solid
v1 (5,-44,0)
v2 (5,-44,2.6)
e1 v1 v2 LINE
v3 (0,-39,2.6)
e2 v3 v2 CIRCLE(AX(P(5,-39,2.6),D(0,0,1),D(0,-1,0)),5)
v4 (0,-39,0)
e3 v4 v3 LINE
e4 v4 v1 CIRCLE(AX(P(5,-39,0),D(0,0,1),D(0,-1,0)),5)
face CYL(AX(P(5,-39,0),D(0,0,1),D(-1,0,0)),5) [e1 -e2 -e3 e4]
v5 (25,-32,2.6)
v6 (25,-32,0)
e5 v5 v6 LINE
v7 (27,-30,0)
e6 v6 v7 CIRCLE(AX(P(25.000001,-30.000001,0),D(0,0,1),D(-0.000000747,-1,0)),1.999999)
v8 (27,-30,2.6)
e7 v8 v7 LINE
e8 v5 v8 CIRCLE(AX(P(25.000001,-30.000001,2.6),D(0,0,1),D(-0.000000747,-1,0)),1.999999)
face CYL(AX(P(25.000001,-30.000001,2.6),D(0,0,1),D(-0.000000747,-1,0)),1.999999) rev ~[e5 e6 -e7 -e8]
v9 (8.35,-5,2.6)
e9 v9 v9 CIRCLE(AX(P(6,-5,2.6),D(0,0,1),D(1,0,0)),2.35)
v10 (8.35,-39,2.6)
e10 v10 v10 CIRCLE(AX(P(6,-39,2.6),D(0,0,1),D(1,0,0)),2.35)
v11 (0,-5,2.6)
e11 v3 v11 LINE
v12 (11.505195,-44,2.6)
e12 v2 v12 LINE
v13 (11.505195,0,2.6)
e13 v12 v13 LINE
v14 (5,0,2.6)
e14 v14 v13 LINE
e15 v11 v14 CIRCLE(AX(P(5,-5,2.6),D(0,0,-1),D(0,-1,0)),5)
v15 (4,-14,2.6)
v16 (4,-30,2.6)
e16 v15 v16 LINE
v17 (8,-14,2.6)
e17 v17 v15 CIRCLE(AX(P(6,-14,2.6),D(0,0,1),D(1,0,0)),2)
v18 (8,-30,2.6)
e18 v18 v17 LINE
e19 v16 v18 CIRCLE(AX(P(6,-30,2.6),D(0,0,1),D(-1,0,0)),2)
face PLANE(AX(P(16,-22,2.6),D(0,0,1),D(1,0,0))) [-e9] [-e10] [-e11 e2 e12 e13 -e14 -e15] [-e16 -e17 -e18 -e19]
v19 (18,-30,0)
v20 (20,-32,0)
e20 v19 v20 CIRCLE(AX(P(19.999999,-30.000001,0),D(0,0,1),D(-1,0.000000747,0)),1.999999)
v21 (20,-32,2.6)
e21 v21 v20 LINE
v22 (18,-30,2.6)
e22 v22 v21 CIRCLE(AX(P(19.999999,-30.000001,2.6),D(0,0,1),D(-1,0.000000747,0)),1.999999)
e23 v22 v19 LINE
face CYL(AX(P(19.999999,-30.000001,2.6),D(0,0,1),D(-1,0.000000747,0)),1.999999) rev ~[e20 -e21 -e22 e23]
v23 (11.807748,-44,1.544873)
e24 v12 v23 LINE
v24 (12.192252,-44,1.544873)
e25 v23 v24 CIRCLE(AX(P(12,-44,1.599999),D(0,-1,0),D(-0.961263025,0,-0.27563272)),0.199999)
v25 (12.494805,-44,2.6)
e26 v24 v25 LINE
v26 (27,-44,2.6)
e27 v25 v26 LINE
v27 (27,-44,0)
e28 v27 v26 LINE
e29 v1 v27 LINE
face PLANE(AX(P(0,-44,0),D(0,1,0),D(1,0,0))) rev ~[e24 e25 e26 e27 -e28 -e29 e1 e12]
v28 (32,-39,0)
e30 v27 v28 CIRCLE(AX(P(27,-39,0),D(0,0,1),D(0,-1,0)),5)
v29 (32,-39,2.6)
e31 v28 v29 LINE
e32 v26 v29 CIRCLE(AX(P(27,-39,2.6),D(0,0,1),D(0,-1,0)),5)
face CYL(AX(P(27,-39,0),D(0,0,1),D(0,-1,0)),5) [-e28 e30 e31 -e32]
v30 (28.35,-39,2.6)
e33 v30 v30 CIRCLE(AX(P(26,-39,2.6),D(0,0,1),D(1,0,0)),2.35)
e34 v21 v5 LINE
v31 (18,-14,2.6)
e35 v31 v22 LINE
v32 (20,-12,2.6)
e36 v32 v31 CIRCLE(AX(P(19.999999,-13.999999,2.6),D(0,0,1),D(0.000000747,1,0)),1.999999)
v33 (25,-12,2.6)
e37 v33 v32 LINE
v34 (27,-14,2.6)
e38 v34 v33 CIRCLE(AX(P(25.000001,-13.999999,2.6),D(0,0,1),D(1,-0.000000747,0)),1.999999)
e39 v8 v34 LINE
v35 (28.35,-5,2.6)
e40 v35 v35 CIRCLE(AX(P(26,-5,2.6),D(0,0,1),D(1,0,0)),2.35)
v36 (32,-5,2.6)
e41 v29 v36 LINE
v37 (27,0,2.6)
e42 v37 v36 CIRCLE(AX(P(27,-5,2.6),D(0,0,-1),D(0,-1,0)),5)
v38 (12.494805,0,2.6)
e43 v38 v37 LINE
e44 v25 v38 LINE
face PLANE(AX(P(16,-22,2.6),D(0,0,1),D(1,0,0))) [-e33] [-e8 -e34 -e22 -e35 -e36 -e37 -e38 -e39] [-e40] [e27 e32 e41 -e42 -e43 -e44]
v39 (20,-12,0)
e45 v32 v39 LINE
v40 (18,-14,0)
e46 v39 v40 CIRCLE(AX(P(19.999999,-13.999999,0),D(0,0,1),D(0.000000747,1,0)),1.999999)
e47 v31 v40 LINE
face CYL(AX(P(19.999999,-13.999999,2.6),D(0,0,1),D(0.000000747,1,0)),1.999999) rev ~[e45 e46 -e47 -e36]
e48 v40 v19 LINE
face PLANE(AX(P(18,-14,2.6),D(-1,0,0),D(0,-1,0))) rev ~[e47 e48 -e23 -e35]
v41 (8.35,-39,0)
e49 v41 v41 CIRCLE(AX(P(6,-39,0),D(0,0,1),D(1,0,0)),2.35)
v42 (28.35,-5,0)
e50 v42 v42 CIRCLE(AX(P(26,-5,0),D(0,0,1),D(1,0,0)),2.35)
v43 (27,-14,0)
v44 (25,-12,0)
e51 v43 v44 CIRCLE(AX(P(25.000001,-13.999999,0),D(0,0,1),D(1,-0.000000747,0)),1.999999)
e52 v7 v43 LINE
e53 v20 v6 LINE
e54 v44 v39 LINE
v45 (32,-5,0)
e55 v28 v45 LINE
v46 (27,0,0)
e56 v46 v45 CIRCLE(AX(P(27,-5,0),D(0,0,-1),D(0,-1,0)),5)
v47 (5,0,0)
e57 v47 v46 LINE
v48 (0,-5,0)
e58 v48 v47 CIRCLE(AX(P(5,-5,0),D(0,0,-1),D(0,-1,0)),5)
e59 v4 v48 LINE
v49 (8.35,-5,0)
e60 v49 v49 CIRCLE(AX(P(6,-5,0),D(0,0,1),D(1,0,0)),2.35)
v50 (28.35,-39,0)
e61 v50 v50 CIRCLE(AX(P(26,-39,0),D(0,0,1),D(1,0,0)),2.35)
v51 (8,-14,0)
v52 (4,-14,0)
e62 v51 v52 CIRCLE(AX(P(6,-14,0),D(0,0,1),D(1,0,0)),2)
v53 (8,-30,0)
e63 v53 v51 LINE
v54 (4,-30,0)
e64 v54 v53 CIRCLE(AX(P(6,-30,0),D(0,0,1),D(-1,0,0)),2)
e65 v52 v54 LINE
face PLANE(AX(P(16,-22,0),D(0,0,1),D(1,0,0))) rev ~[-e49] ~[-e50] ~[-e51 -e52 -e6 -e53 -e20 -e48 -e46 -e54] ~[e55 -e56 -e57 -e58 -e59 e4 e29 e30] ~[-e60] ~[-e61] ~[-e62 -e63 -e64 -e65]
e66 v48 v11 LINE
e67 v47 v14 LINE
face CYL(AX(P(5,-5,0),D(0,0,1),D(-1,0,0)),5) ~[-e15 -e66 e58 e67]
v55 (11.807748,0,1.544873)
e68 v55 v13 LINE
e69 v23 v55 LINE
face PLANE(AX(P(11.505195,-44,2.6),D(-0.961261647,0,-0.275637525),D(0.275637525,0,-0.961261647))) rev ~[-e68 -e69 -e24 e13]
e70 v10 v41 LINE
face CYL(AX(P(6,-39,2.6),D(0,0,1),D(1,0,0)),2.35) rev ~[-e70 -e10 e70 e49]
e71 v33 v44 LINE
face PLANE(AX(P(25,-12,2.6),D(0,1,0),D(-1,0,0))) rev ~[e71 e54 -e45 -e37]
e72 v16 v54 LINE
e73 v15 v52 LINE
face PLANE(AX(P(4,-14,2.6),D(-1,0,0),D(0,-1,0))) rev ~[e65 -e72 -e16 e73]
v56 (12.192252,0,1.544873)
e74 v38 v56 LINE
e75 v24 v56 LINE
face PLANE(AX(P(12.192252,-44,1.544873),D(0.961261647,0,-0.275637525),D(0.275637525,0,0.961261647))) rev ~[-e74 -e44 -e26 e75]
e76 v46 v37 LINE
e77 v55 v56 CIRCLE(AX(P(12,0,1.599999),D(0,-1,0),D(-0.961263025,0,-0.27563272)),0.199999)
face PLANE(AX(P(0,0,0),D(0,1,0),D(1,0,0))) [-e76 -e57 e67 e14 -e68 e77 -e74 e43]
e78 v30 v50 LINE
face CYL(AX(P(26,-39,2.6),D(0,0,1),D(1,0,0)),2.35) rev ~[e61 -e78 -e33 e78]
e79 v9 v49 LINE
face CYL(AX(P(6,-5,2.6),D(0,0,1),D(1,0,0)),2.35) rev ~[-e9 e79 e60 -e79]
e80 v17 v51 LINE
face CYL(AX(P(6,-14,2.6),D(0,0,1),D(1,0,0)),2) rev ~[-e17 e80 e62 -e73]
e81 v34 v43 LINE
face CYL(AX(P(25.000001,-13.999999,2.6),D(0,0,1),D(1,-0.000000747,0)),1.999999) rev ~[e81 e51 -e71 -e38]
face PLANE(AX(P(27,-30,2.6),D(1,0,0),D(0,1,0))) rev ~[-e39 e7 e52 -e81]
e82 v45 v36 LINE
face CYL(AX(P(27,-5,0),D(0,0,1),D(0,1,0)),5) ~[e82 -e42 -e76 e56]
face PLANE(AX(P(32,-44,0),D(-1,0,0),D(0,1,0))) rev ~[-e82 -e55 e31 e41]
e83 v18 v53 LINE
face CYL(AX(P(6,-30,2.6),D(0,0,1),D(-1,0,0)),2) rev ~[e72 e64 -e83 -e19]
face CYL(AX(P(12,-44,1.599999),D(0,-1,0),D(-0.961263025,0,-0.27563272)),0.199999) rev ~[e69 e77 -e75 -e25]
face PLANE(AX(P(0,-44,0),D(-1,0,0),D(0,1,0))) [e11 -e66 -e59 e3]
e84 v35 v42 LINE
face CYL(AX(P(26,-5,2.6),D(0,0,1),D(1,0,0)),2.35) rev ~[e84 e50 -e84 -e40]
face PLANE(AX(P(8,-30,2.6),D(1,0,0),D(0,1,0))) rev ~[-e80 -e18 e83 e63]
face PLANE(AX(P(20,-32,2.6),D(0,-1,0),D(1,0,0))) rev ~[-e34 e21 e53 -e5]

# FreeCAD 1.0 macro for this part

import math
import FreeCAD as App
import Part
import Sketcher

V = App.Vector
Q = App.Units.Quantity


def edges_at(feature, points):
    """Names of the edges that pass closest to the given points."""
    edges = feature.Shape.Edges
    near = lambda p: min(range(len(edges)), key=lambda i: edges[i].distToShape(Part.Vertex(*p))[0])
    return sorted({f"Edge{near(p) + 1}" for p in points})


def add_polygon(sketch, points):
    """Adds a closed chain of lines whose ends are joined by coincident constraints."""
    first, n = sketch.GeometryCount, len(points)
    for a, b in zip(points, points[1:] + points[:1]):
        sketch.addGeometry(Part.LineSegment(App.Vector(*a, 0), App.Vector(*b, 0)), False)
    for i in range(n):
        sketch.addConstraint(Sketcher.Constraint("Coincident", first + i, 2, first + (i + 1) % n, 1))

doc = App.newDocument("Part")
body = doc.addObject("PartDesign::Body", "Body")

# Sketch on XY plane
sketch1 = doc.addObject("Sketcher::SketchObject", "Sketch")
body.addObject(sketch1)
sketch1.AttachmentSupport = (doc.XY_Plane, [""])
sketch1.MapMode = "FlatFace"
add_polygon(sketch1, [(0, 0), (0, -44), (32, -44), (32, 0)])  # lines 0-3
sketch1.addConstraint([
    Sketcher.Constraint("Vertical", 0),
    Sketcher.Constraint("Horizontal", 1),
    Sketcher.Constraint("Vertical", 2),
    Sketcher.Constraint("Horizontal", 3),
    Sketcher.Constraint("Coincident", 3, 2, -1, 1),
    Sketcher.Constraint("DistanceX", 1, 1, 1, 2, 32.0),
    Sketcher.Constraint("DistanceY", 0, 2, 0, 1, 44.0),
])
pad1 = doc.addObject("PartDesign::Pad", "Pad")
body.addObject(pad1)
pad1.Profile = sketch1
pad1.Length = 2.6

# Sketch on XY plane
sketch2 = doc.addObject("Sketcher::SketchObject", "Sketch001")
body.addObject(sketch2)
sketch2.AttachmentSupport = (doc.XY_Plane, [""])
sketch2.MapMode = "FlatFace"
sketch2.AttachmentOffset = App.Placement(V(0, 0, 2.6), App.Rotation())
sketch2.addGeometry([
    Part.Circle(V(6, -5, 0), V(0, 0, 1), 2.35),
    Part.Circle(V(6, -39, 0), V(0, 0, 1), 2.35),
    Part.Circle(V(26, -39, 0), V(0, 0, 1), 2.35),
    Part.Circle(V(26, -5, 0), V(0, 0, 1), 2.35),
], False)
sketch2.addConstraint([
    Sketcher.Constraint("Equal", 0, 1),
    Sketcher.Constraint("Equal", 1, 2),
    Sketcher.Constraint("Equal", 2, 3),
    Sketcher.Constraint("Horizontal", 1, 3, 2, 3),
    Sketcher.Constraint("Horizontal", 0, 3, 3, 3),
    Sketcher.Constraint("Vertical", 0, 3, 1, 3),
    Sketcher.Constraint("Vertical", 2, 3, 3, 3),
    Sketcher.Constraint("Diameter", 0, 4.7),
    Sketcher.Constraint("DistanceX", -1, 1, 0, 3, 6.0),
    Sketcher.Constraint("DistanceY", 0, 3, -1, 1, 5.0),
    Sketcher.Constraint("DistanceY", 1, 3, -1, 1, 39.0),
    Sketcher.Constraint("DistanceX", -1, 1, 2, 3, 26.0),
])
pocket1 = doc.addObject("PartDesign::Pocket", "Pocket")
body.addObject(pocket1)
pocket1.Profile = sketch2
pocket1.Type = "ThroughAll"

# Sketch on XZ plane
sketch3 = doc.addObject("Sketcher::SketchObject", "Sketch002")
body.addObject(sketch3)
sketch3.AttachmentSupport = (doc.XZ_Plane, [""])
sketch3.MapMode = "FlatFace"
sketch3.AttachmentOffset = App.Placement(V(0, 0, 44), App.Rotation())
sketch3.addGeometry([
    Part.LineSegment(V(12.494805, 2.6, 0), V(11.505195, 2.6, 0)),
    Part.LineSegment(V(11.505195, 2.6, 0), V(11.807748, 1.544873, 0)),
    Part.ArcOfCircle(Part.Circle(V(12, 1.599999, 0), V(0, 0, 1), 0.199999), math.radians(-164.000276), math.radians(-15.999724)),
    Part.LineSegment(V(12.192252, 1.544873, 0), V(12.494805, 2.6, 0)),
], False)
sketch3.addConstraint([
    Sketcher.Constraint("Coincident", 0, 2, 1, 1),
    Sketcher.Constraint("Coincident", 1, 2, 2, 1),
    Sketcher.Constraint("Coincident", 2, 2, 3, 1),
    Sketcher.Constraint("Coincident", 3, 2, 0, 1),
    Sketcher.Constraint("Horizontal", 0),
    Sketcher.Constraint("Horizontal", 1, 2, 2, 2),
    Sketcher.Constraint("Equal", 1, 3),
    Sketcher.Constraint("Radius", 2, 0.199999),
    Sketcher.Constraint("Angle", 1, Q("-73.99999 deg")),
    Sketcher.Constraint("DistanceX", -1, 1, 2, 3, 12.0),
    Sketcher.Constraint("DistanceY", 2, 3, 0, 2, 1.000001),
    Sketcher.Constraint("DistanceY", -1, 1, 2, 3, 1.599999),
    Sketcher.Constraint("Distance", 1, 1.097648),
])
pocket2 = doc.addObject("PartDesign::Pocket", "Pocket001")
body.addObject(pocket2)
pocket2.Profile = sketch3
pocket2.Type = "ThroughAll"
doc.recompute()

fillet = doc.addObject("PartDesign::Fillet", "Fillet")
body.addObject(fillet)
fillet.Base = (pocket2, edges_at(pocket2, [
    (0, -44, 1.3),
    (32, -44, 1.3),
    (32, 0, 1.3),
    (0, 0, 1.3),
]))
fillet.Radius = 5

# Sketch on XY plane
sketch4 = doc.addObject("Sketcher::SketchObject", "Sketch003")
body.addObject(sketch4)
sketch4.AttachmentSupport = (doc.XY_Plane, [""])
sketch4.MapMode = "FlatFace"
sketch4.AttachmentOffset = App.Placement(V(0, 0, 2.6), App.Rotation())
sketch4.addGeometry([
    Part.LineSegment(V(8, -30, 0), V(8, -14, 0)),  # 0
    Part.ArcOfCircle(Part.Circle(V(6, -14, 0), V(0, 0, 1), 2), math.radians(0), math.radians(180)),  # 1
    Part.LineSegment(V(4, -14, 0), V(4, -30, 0)),  # 2
    Part.ArcOfCircle(Part.Circle(V(6, -30, 0), V(0, 0, 1), 2), math.radians(180), math.radians(360)),  # 3
    Part.LineSegment(V(25, -12, 0), V(20, -12, 0)),  # 4
    Part.ArcOfCircle(Part.Circle(V(19.999999, -13.999999, 0), V(0, 0, 1), 1.999999), math.radians(89.999957), math.radians(180.000043)),  # 5
    Part.LineSegment(V(18, -14, 0), V(18, -30, 0)),  # 6
    Part.ArcOfCircle(Part.Circle(V(19.999999, -30.000001, 0), V(0, 0, 1), 1.999999), math.radians(179.999957), math.radians(270.000043)),  # 7
    Part.LineSegment(V(20, -32, 0), V(25, -32, 0)),  # 8
    Part.ArcOfCircle(Part.Circle(V(25.000001, -30.000001, 0), V(0, 0, 1), 1.999999), math.radians(-90.000043), math.radians(0.000043)),  # 9
    Part.LineSegment(V(27, -30, 0), V(27, -14, 0)),  # 10
    Part.ArcOfCircle(Part.Circle(V(25.000001, -13.999999, 0), V(0, 0, 1), 1.999999), math.radians(-0.000043), math.radians(90.000043)),  # 11
], False)
sketch4.addConstraint([
    Sketcher.Constraint("Tangent", 0, 2, 1, 1),
    Sketcher.Constraint("Tangent", 1, 2, 2, 1),
    Sketcher.Constraint("Tangent", 2, 2, 3, 1),
    Sketcher.Constraint("Tangent", 3, 2, 0, 1),
    Sketcher.Constraint("Tangent", 4, 2, 5, 1),
    Sketcher.Constraint("Tangent", 5, 2, 6, 1),
    Sketcher.Constraint("Tangent", 6, 2, 7, 1),
    Sketcher.Constraint("Tangent", 7, 2, 8, 1),
    Sketcher.Constraint("Tangent", 8, 2, 9, 1),
    Sketcher.Constraint("Tangent", 9, 2, 10, 1),
    Sketcher.Constraint("Tangent", 10, 2, 11, 1),
    Sketcher.Constraint("Tangent", 11, 2, 4, 1),
    Sketcher.Constraint("Vertical", 0),
    Sketcher.Constraint("Vertical", 2),
    Sketcher.Constraint("Horizontal", 4),
    Sketcher.Constraint("Vertical", 6),
    Sketcher.Constraint("Horizontal", 8),
    Sketcher.Constraint("Vertical", 10),
    Sketcher.Constraint("Equal", 3, 5),
    Sketcher.Constraint("Equal", 5, 7),
    Sketcher.Constraint("Equal", 7, 9),
    Sketcher.Constraint("Equal", 9, 11),
    Sketcher.Constraint("Horizontal", 1, 3, 5, 3),
    Sketcher.Constraint("Horizontal", 3, 3, 7, 3),
    Sketcher.Constraint("Radius", 1, 2.0),
    Sketcher.Constraint("DistanceX", 4, 2, 4, 1, 5.0),
    Sketcher.Constraint("DistanceY", 0, 1, 0, 2, 16.0),
    Sketcher.Constraint("DistanceX", -1, 1, 1, 3, 6.0),
    Sketcher.Constraint("DistanceY", 1, 3, -1, 1, 14.0),
    Sketcher.Constraint("DistanceX", -1, 1, 5, 3, 19.999999),
])
pocket3 = doc.addObject("PartDesign::Pocket", "Pocket002")
body.addObject(pocket3)
pocket3.Profile = sketch4
pocket3.Type = "ThroughAll"

doc.recompute()
